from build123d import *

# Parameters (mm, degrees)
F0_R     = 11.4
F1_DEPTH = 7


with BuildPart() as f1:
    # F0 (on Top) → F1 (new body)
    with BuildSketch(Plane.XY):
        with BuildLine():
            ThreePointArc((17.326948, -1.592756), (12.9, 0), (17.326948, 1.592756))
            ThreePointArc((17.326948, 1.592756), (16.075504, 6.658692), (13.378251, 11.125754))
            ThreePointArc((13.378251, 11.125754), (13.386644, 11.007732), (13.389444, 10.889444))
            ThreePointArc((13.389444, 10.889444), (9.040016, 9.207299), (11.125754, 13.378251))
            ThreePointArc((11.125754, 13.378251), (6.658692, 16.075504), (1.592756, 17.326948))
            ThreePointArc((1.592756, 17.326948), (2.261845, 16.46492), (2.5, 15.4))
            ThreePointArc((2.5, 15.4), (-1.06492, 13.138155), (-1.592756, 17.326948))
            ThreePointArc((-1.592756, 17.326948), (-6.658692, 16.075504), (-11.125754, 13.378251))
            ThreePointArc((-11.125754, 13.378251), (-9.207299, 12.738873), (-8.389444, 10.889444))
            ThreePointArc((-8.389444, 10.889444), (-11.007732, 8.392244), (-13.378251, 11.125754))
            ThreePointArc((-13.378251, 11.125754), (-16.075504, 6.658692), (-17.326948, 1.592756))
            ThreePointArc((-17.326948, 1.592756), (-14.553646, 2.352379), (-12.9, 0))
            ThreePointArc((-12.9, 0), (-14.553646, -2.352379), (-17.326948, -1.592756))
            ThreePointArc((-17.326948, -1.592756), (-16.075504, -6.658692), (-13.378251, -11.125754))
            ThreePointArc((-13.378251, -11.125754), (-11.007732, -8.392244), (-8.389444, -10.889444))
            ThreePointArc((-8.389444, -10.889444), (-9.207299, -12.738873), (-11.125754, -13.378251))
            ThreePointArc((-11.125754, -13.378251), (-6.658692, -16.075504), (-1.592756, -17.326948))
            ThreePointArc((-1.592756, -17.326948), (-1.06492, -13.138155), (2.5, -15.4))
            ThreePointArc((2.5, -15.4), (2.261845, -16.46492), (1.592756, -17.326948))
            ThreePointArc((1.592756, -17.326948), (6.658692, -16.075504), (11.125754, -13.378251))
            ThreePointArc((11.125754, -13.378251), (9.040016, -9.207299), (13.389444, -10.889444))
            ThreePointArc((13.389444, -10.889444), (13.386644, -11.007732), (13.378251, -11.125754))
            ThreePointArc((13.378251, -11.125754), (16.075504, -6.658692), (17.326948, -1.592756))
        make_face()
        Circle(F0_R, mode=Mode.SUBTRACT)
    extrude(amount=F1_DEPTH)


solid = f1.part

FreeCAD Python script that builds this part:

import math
import FreeCAD as App
import Part
import Sketcher

doc = App.newDocument("Part")
body = doc.addObject("PartDesign::Body", "Body")

# Sketch on XY plane
sketch1 = doc.addObject("Sketcher::SketchObject", "Sketch")
body.addObject(sketch1)
sketch1.AttachmentSupport = (doc.XY_Plane, [""])
sketch1.MapMode = "FlatFace"
sketch1.addGeometry([
    Part.ArcOfCircle(Part.Circle(App.Vector(15.4, 0, 0), App.Vector(0, 0, 1), 2.5), math.radians(39.57609), math.radians(320.42391)),  # 0
    Part.ArcOfCircle(Part.Circle(App.Vector(0.000005, 0.000002, 0), App.Vector(0, 0, 1), 17.399995), math.radians(5.252071), math.radians(39.747929)),  # 1
    Part.ArcOfCircle(Part.Circle(App.Vector(10.889184, 10.889437, 0), App.Vector(0, 0, 1), 2.50026), math.radians(0.000152), math.radians(5.423509)),  # 2
    Part.ArcOfCircle(Part.Circle(App.Vector(10.889444, 10.889445, 0), App.Vector(0, 0, 1), 2.5), math.radians(84.576081), math.radians(359.999983)),  # 3
    Part.ArcOfCircle(Part.Circle(App.Vector(0.000002, 0.000005, 0), App.Vector(0, 0, 1), 17.399995), math.radians(50.252071), math.radians(84.747929)),  # 4
    Part.ArcOfCircle(Part.Circle(App.Vector(-0.000005, 15.399998, 0), App.Vector(0, 0, 1), 2.500005), math.radians(0.000055), math.radians(50.423853)),  # 5
    Part.ArcOfCircle(Part.Circle(App.Vector(0, 15.4, 0), App.Vector(0, 0, 1), 2.5), math.radians(129.576097), math.radians(359.999992)),  # 6
    Part.ArcOfCircle(Part.Circle(App.Vector(-0.000002, 0.000005, 0), App.Vector(0, 0, 1), 17.399995), math.radians(95.252071), math.radians(129.747929)),  # 7
    Part.ArcOfCircle(Part.Circle(App.Vector(-10.889445, 10.889443, 0), App.Vector(0, 0, 1), 2.500001), math.radians(0.000014), math.radians(95.423897)),  # 8
    Part.ArcOfCircle(Part.Circle(App.Vector(-10.889444, 10.889444, 0), App.Vector(0, 0, 1), 2.5), math.radians(174.576084), math.radians(359.999993)),  # 9
    Part.ArcOfCircle(Part.Circle(App.Vector(-0.000005, 0.000002, 0), App.Vector(0, 0, 1), 17.399995), math.radians(140.252071), math.radians(174.747929)),  # 10
    Part.ArcOfCircle(Part.Circle(App.Vector(-15.4, 0.000001, 0), App.Vector(0, 0, 1), 2.5), math.radians(-0.000013), math.radians(140.423923)),  # 11
    Part.ArcOfCircle(Part.Circle(App.Vector(-15.4, -0.000001, 0), App.Vector(0, 0, 1), 2.5), math.radians(-140.423923), math.radians(0.000013)),  # 12
    Part.ArcOfCircle(Part.Circle(App.Vector(-0.000005, -0.000002, 0), App.Vector(0, 0, 1), 17.399995), math.radians(-174.747929), math.radians(-140.252071)),  # 13
    Part.ArcOfCircle(Part.Circle(App.Vector(-10.889444, -10.889444, 0), App.Vector(0, 0, 1), 2.5), math.radians(0.000007), math.radians(185.423916)),  # 14
    Part.ArcOfCircle(Part.Circle(App.Vector(-10.889445, -10.889443, 0), App.Vector(0, 0, 1), 2.500001), math.radians(-95.423897), math.radians(-0.000014)),  # 15
    Part.ArcOfCircle(Part.Circle(App.Vector(-0.000002, -0.000005, 0), App.Vector(0, 0, 1), 17.399995), math.radians(-129.747929), math.radians(-95.252071)),  # 16
    Part.ArcOfCircle(Part.Circle(App.Vector(0, -15.4, 0), App.Vector(0, 0, 1), 2.5), math.radians(0.000008), math.radians(230.423903)),  # 17
    Part.ArcOfCircle(Part.Circle(App.Vector(-0.000005, -15.399998, 0), App.Vector(0, 0, 1), 2.500005), math.radians(-50.423853), math.radians(-0.000055)),  # 18
    Part.ArcOfCircle(Part.Circle(App.Vector(0.000002, -0.000005, 0), App.Vector(0, 0, 1), 17.399995), math.radians(-84.747929), math.radians(-50.252071)),  # 19
    Part.ArcOfCircle(Part.Circle(App.Vector(10.889444, -10.889445, 0), App.Vector(0, 0, 1), 2.5), math.radians(0.000017), math.radians(275.423919)),  # 20
    Part.ArcOfCircle(Part.Circle(App.Vector(10.889184, -10.889437, 0), App.Vector(0, 0, 1), 2.50026), math.radians(-5.423509), math.radians(-0.000152)),  # 21
    Part.ArcOfCircle(Part.Circle(App.Vector(0.000005, -0.000002, 0), App.Vector(0, 0, 1), 17.399995), math.radians(-39.747929), math.radians(-5.252071)),  # 22
    Part.Circle(App.Vector(0, 0, 0), App.Vector(0, 0, 1), 11.4),  # 23
], False)
sketch1.addConstraint([
    Sketcher.Constraint("Coincident", 0, 1, 1, 1),
    Sketcher.Constraint("Coincident", 1, 2, 2, 2),
    Sketcher.Constraint("Coincident", 2, 1, 3, 2),
    Sketcher.Constraint("Coincident", 3, 1, 4, 1),
    Sketcher.Constraint("Coincident", 4, 2, 5, 2),
    Sketcher.Constraint("Tangent", 5, 1, 6, 2),
    Sketcher.Constraint("Coincident", 6, 1, 7, 1),
    Sketcher.Constraint("Coincident", 7, 2, 8, 2),
    Sketcher.Constraint("Tangent", 8, 1, 9, 2),
    Sketcher.Constraint("Coincident", 9, 1, 10, 1),
    Sketcher.Constraint("Coincident", 10, 2, 11, 2),
    Sketcher.Constraint("Tangent", 11, 1, 12, 2),
    Sketcher.Constraint("Coincident", 12, 1, 13, 1),
    Sketcher.Constraint("Coincident", 13, 2, 14, 2),
    Sketcher.Constraint("Tangent", 14, 1, 15, 2),
    Sketcher.Constraint("Coincident", 15, 1, 16, 1),
    Sketcher.Constraint("Coincident", 16, 2, 17, 2),
    Sketcher.Constraint("Tangent", 17, 1, 18, 2),
    Sketcher.Constraint("Coincident", 18, 1, 19, 1),
    Sketcher.Constraint("Coincident", 19, 2, 20, 2),
    Sketcher.Constraint("Coincident", 20, 1, 21, 2),
    Sketcher.Constraint("Coincident", 21, 1, 22, 1),
    Sketcher.Constraint("Coincident", 22, 2, 0, 2),
    Sketcher.Constraint("Coincident", 1, 3, -1, 1),
    Sketcher.Constraint("Coincident", 4, 3, -1, 1),
    Sketcher.Constraint("Coincident", 7, 3, -1, 1),
    Sketcher.Constraint("Coincident", 10, 3, -1, 1),
    Sketcher.Constraint("Coincident", 13, 3, -1, 1),
    Sketcher.Constraint("Coincident", 16, 3, -1, 1),
    Sketcher.Constraint("Coincident", 19, 3, -1, 1),
    Sketcher.Constraint("Coincident", 22, 3, -1, 1),
    Sketcher.Constraint("Coincident", 23, 3, -1, 1),
    Sketcher.Constraint("Equal", 0, 3),
    Sketcher.Constraint("Equal", 1, 4),
    Sketcher.Constraint("Equal", 3, 6),
    Sketcher.Constraint("Equal", 4, 7),
    Sketcher.Constraint("Equal", 6, 8),
    Sketcher.Constraint("Equal", 8, 9),
    Sketcher.Constraint("Equal", 7, 10),
    Sketcher.Constraint("Equal", 9, 11),
    Sketcher.Constraint("Equal", 11, 12),
    Sketcher.Constraint("Equal", 10, 13),
    Sketcher.Constraint("Equal", 12, 14),
    Sketcher.Constraint("Equal", 14, 15),
    Sketcher.Constraint("Equal", 13, 16),
    Sketcher.Constraint("Equal", 15, 17),
    Sketcher.Constraint("Equal", 5, 18),
    Sketcher.Constraint("Equal", 16, 19),
    Sketcher.Constraint("Equal", 17, 20),
    Sketcher.Constraint("Equal", 2, 21),
    Sketcher.Constraint("Equal", 19, 22),
    Sketcher.Constraint("Symmetric", 0, 3, 11, 3, -1, 1),
    Sketcher.Constraint("Symmetric", 3, 3, 14, 3, -1, 1),
    Sketcher.Constraint("Symmetric", 5, 3, 17, 3, -1, 1),
    Sketcher.Constraint("Symmetric", 8, 3, 20, 3, -1, 1),
    Sketcher.Constraint("Symmetric", 3, 3, 8, 3, -2),
    Sketcher.Constraint("Symmetric", 5, 1, 17, 1, -1),
    Sketcher.Constraint("PointOnObject", 0, 3, -1),
    Sketcher.Constraint("PointOnObject", 6, 3, -2),
    Sketcher.Constraint("PointOnObject", 11, 1, -1),
    Sketcher.Constraint("Horizontal", 9, 3, 2, 1),
    Sketcher.Constraint("Horizontal", 6, 3, 5, 1),
    Sketcher.Constraint("Horizontal", 2, 1, 8, 1),
    Sketcher.Constraint("Horizontal", 1, 2, 9, 1),
    Sketcher.Constraint("Horizontal", 20, 3, 14, 1),
    Sketcher.Constraint("Horizontal", 14, 1, 20, 1),
    Sketcher.Constraint("Horizontal", 13, 2, 21, 1),
    Sketcher.Constraint("Diameter", 23, 22.8),
    Sketcher.Constraint("Radius", 0, 2.5),
    Sketcher.Constraint("DistanceX", -1, 1, 0, 3, 15.4),
    Sketcher.Constraint("DistanceY", -1, 1, 6, 3, 15.4),
    Sketcher.Constraint("Radius", 2, 2.50026),
    Sketcher.Constraint("Radius", 1, 17.399995),
    Sketcher.Constraint("DistanceX", 4, 2, 3, 1, 9.532998),
    Sketcher.Constraint("DistanceY", 10, 2, 9, 1, 9.532998),
])
pad1 = doc.addObject("PartDesign::Pad", "Pad")
body.addObject(pad1)
pad1.Profile = sketch1
pad1.Length = 7

doc.recompute()
